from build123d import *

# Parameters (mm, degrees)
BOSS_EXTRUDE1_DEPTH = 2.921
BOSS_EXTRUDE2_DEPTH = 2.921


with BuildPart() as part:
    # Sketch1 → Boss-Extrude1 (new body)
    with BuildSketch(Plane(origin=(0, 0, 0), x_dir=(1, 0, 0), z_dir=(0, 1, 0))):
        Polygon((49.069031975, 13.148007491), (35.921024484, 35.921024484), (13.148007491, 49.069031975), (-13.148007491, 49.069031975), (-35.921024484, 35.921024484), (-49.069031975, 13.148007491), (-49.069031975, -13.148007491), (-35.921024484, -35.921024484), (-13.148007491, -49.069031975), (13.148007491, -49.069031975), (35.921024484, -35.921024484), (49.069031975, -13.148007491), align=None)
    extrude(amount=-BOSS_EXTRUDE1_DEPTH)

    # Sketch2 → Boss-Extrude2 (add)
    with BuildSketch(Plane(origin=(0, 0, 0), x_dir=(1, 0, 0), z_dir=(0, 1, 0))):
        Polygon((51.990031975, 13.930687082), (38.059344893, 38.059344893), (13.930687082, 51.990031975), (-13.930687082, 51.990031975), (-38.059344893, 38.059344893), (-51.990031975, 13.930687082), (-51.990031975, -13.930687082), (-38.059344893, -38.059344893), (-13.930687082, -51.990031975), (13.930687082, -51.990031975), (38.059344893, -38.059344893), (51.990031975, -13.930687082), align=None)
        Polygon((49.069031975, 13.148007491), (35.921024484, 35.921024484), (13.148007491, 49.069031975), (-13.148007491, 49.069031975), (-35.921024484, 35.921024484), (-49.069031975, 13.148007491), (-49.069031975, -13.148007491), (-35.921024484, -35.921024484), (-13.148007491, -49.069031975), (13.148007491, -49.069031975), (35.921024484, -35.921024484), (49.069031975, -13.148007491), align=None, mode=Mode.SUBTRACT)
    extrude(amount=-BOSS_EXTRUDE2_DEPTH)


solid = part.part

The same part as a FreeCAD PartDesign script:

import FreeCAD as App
import Part
import Sketcher

V = App.Vector
Q = App.Units.Quantity

doc = App.newDocument("Part")
body = doc.addObject("PartDesign::Body", "Body")

sketch1 = body.newObject("Sketcher::SketchObject", "Sketch")
sketch1.AttachmentSupport = (doc.getObject("XZ_Plane"), [""])
sketch1.MapMode = "FlatFace"
sketch1.addGeometry([
    Part.LineSegment(V(49, -13, 0), V(36, -36, 0)),
    Part.LineSegment(V(36, -36, 0), V(13, -49, 0)),
    Part.LineSegment(V(13, -49, 0), V(-13, -49, 0)),
    Part.LineSegment(V(-13, -49, 0), V(-36, -36, 0)),
    Part.LineSegment(V(-36, -36, 0), V(-49, -13, 0)),
    Part.LineSegment(V(-49, -13, 0), V(-49, 13, 0)),
    Part.LineSegment(V(-49, 13, 0), V(-36, 36, 0)),
    Part.LineSegment(V(-36, 36, 0), V(-13, 49, 0)),
    Part.LineSegment(V(-13, 49, 0), V(13, 49, 0)),
    Part.LineSegment(V(13, 49, 0), V(36, 36, 0)),
    Part.LineSegment(V(36, 36, 0), V(49, 13, 0)),
    Part.LineSegment(V(49, 13, 0), V(49, -13, 0)),
], False)
sketch1.addConstraint([
    Sketcher.Constraint("Coincident", 0, 2, 1, 1),
    Sketcher.Constraint("Coincident", 1, 2, 2, 1),
    Sketcher.Constraint("Coincident", 2, 2, 3, 1),
    Sketcher.Constraint("Coincident", 3, 2, 4, 1),
    Sketcher.Constraint("Coincident", 4, 2, 5, 1),
    Sketcher.Constraint("Coincident", 5, 2, 6, 1),
    Sketcher.Constraint("Coincident", 6, 2, 7, 1),
    Sketcher.Constraint("Coincident", 7, 2, 8, 1),
    Sketcher.Constraint("Coincident", 8, 2, 9, 1),
    Sketcher.Constraint("Coincident", 9, 2, 10, 1),
    Sketcher.Constraint("Coincident", 10, 2, 11, 1),
    Sketcher.Constraint("Coincident", 11, 2, 0, 1),
    Sketcher.Constraint("Horizontal", 2),
    Sketcher.Constraint("Vertical", 5),
    Sketcher.Constraint("Horizontal", 8),
    Sketcher.Constraint("Vertical", 11),
    Sketcher.Constraint("Symmetric", 0, 2, 6, 2, -1, 1),
    Sketcher.Constraint("Symmetric", 1, 2, 7, 2, -1, 1),
    Sketcher.Constraint("Symmetric", 3, 2, 9, 2, -1, 1),
    Sketcher.Constraint("Symmetric", 4, 2, 10, 2, -1, 1),
    Sketcher.Constraint("Symmetric", 0, 2, 3, 2, -2),
    Sketcher.Constraint("Perpendicular", 0, 3),
    Sketcher.Constraint("Perpendicular", 1, 4),
    Sketcher.Constraint("Perpendicular", 3, 6),
    Sketcher.Constraint("Perpendicular", 6, 9),
    Sketcher.Constraint("Horizontal", 5, 2, 10, 2),
    Sketcher.Constraint("Equal", 8, 5),
    Sketcher.Constraint("Equal", 0, 1),
    Sketcher.Constraint("Angle", 0, Q("-120 deg")),
    Sketcher.Constraint("DistanceX", 2, 2, 2, 1, 26.296015),
    Sketcher.Constraint("DistanceY", 1, 2, -1, 1, 49.069032),
])
pad1 = body.newObject("PartDesign::Pad", "Pad")
pad1.Profile = sketch1
pad1.Length = Q("0.115 in")

sketch2 = body.newObject("Sketcher::SketchObject", "Sketch001")
sketch2.AttachmentSupport = (doc.getObject("XZ_Plane"), [""])
sketch2.MapMode = "FlatFace"
sketch2.addGeometry([
    Part.LineSegment(V(52, -14, 0), V(38, -38, 0)),
    Part.LineSegment(V(38, -38, 0), V(14, -52, 0)),
    Part.LineSegment(V(14, -52, 0), V(-14, -52, 0)),
    Part.LineSegment(V(-14, -52, 0), V(-38, -38, 0)),
    Part.LineSegment(V(-38, -38, 0), V(-52, -14, 0)),
    Part.LineSegment(V(-52, -14, 0), V(-52, 14, 0)),
    Part.LineSegment(V(-52, 14, 0), V(-38, 38, 0)),
    Part.LineSegment(V(-38, 38, 0), V(-14, 52, 0)),
    Part.LineSegment(V(-14, 52, 0), V(14, 52, 0)),
    Part.LineSegment(V(14, 52, 0), V(38, 38, 0)),
    Part.LineSegment(V(38, 38, 0), V(52, 14, 0)),
    Part.LineSegment(V(52, 14, 0), V(52, -14, 0)),
    Part.LineSegment(V(36, -36, 0), V(49, -13, 0)),
    Part.LineSegment(V(49, -13, 0), V(49, 13, 0)),
    Part.LineSegment(V(49, 13, 0), V(36, 36, 0)),
    Part.LineSegment(V(36, 36, 0), V(13, 49, 0)),
    Part.LineSegment(V(13, 49, 0), V(-13, 49, 0)),
    Part.LineSegment(V(-13, 49, 0), V(-36, 36, 0)),
    Part.LineSegment(V(-36, 36, 0), V(-49, 13, 0)),
    Part.LineSegment(V(-49, 13, 0), V(-49, -13, 0)),
    Part.LineSegment(V(-49, -13, 0), V(-36, -36, 0)),
    Part.LineSegment(V(-36, -36, 0), V(-13, -49, 0)),
    Part.LineSegment(V(-13, -49, 0), V(13, -49, 0)),
    Part.LineSegment(V(13, -49, 0), V(36, -36, 0)),
], False)
sketch2.addConstraint([
    Sketcher.Constraint("Coincident", 0, 2, 1, 1),
    Sketcher.Constraint("Coincident", 1, 2, 2, 1),
    Sketcher.Constraint("Coincident", 2, 2, 3, 1),
    Sketcher.Constraint("Coincident", 3, 2, 4, 1),
    Sketcher.Constraint("Coincident", 4, 2, 5, 1),
    Sketcher.Constraint("Coincident", 5, 2, 6, 1),
    Sketcher.Constraint("Coincident", 6, 2, 7, 1),
    Sketcher.Constraint("Coincident", 7, 2, 8, 1),
    Sketcher.Constraint("Coincident", 8, 2, 9, 1),
    Sketcher.Constraint("Coincident", 9, 2, 10, 1),
    Sketcher.Constraint("Coincident", 10, 2, 11, 1),
    Sketcher.Constraint("Coincident", 11, 2, 0, 1),
    Sketcher.Constraint("Coincident", 12, 2, 13, 1),
    Sketcher.Constraint("Coincident", 13, 2, 14, 1),
    Sketcher.Constraint("Coincident", 14, 2, 15, 1),
    Sketcher.Constraint("Coincident", 15, 2, 16, 1),
    Sketcher.Constraint("Coincident", 16, 2, 17, 1),
    Sketcher.Constraint("Coincident", 17, 2, 18, 1),
    Sketcher.Constraint("Coincident", 18, 2, 19, 1),
    Sketcher.Constraint("Coincident", 19, 2, 20, 1),
    Sketcher.Constraint("Coincident", 20, 2, 21, 1),
    Sketcher.Constraint("Coincident", 21, 2, 22, 1),
    Sketcher.Constraint("Coincident", 22, 2, 23, 1),
    Sketcher.Constraint("Coincident", 23, 2, 12, 1),
    Sketcher.Constraint("Horizontal", 2),
    Sketcher.Constraint("Vertical", 5),
    Sketcher.Constraint("Horizontal", 8),
    Sketcher.Constraint("Vertical", 11),
    Sketcher.Constraint("Vertical", 13),
    Sketcher.Constraint("Horizontal", 16),
    Sketcher.Constraint("Vertical", 19),
    Sketcher.Constraint("Horizontal", 22),
    Sketcher.Constraint("Symmetric", 0, 2, 6, 2, -1, 1),
    Sketcher.Constraint("Symmetric", 1, 2, 7, 2, -1, 1),
    Sketcher.Constraint("Symmetric", 3, 2, 9, 2, -1, 1),
    Sketcher.Constraint("Symmetric", 4, 2, 10, 2, -1, 1),
    Sketcher.Constraint("Symmetric", 12, 2, 18, 2, -1, 1),
    Sketcher.Constraint("Symmetric", 14, 2, 20, 2, -1, 1),
    Sketcher.Constraint("Symmetric", 15, 2, 21, 2, -1, 1),
    Sketcher.Constraint("Symmetric", 17, 2, 23, 2, -1, 1),
    Sketcher.Constraint("Symmetric", 0, 2, 3, 2, -2),
    Sketcher.Constraint("Symmetric", 14, 2, 17, 2, -2),
    Sketcher.Constraint("Perpendicular", 0, 3),
    Sketcher.Constraint("Perpendicular", 1, 4),
    Sketcher.Constraint("Perpendicular", 3, 6),
    Sketcher.Constraint("Perpendicular", 6, 9),
    Sketcher.Constraint("Perpendicular", 9, 12),
    Sketcher.Constraint("Parallel", 10, 14),
    Sketcher.Constraint("Perpendicular", 12, 15),
    Sketcher.Constraint("Perpendicular", 14, 17),
    Sketcher.Constraint("Perpendicular", 17, 20),
    Sketcher.Constraint("Perpendicular", 20, 23),
    Sketcher.Constraint("Horizontal", 5, 2, 10, 2),
    Sketcher.Constraint("Equal", 8, 5),
    Sketcher.Constraint("Equal", 22, 13),
    Sketcher.Constraint("Equal", 0, 1),
    Sketcher.Constraint("Equal", 14, 15),
    Sketcher.Constraint("Angle", 0, Q("-120 deg")),
    Sketcher.Constraint("DistanceX", 12, 2, 11, 2, Q("0.115 in")),
    Sketcher.Constraint("DistanceX", 2, 2, 2, 1, 27.861374),
    Sketcher.Constraint("DistanceX", 16, 2, 16, 1, 26.296015),
    Sketcher.Constraint("DistanceY", 1, 2, -1, 1, 51.990032),
])
pad2 = body.newObject("PartDesign::Pad", "Pad001")
pad2.Profile = sketch2
pad2.Length = Q("0.115 in")

doc.recompute()
